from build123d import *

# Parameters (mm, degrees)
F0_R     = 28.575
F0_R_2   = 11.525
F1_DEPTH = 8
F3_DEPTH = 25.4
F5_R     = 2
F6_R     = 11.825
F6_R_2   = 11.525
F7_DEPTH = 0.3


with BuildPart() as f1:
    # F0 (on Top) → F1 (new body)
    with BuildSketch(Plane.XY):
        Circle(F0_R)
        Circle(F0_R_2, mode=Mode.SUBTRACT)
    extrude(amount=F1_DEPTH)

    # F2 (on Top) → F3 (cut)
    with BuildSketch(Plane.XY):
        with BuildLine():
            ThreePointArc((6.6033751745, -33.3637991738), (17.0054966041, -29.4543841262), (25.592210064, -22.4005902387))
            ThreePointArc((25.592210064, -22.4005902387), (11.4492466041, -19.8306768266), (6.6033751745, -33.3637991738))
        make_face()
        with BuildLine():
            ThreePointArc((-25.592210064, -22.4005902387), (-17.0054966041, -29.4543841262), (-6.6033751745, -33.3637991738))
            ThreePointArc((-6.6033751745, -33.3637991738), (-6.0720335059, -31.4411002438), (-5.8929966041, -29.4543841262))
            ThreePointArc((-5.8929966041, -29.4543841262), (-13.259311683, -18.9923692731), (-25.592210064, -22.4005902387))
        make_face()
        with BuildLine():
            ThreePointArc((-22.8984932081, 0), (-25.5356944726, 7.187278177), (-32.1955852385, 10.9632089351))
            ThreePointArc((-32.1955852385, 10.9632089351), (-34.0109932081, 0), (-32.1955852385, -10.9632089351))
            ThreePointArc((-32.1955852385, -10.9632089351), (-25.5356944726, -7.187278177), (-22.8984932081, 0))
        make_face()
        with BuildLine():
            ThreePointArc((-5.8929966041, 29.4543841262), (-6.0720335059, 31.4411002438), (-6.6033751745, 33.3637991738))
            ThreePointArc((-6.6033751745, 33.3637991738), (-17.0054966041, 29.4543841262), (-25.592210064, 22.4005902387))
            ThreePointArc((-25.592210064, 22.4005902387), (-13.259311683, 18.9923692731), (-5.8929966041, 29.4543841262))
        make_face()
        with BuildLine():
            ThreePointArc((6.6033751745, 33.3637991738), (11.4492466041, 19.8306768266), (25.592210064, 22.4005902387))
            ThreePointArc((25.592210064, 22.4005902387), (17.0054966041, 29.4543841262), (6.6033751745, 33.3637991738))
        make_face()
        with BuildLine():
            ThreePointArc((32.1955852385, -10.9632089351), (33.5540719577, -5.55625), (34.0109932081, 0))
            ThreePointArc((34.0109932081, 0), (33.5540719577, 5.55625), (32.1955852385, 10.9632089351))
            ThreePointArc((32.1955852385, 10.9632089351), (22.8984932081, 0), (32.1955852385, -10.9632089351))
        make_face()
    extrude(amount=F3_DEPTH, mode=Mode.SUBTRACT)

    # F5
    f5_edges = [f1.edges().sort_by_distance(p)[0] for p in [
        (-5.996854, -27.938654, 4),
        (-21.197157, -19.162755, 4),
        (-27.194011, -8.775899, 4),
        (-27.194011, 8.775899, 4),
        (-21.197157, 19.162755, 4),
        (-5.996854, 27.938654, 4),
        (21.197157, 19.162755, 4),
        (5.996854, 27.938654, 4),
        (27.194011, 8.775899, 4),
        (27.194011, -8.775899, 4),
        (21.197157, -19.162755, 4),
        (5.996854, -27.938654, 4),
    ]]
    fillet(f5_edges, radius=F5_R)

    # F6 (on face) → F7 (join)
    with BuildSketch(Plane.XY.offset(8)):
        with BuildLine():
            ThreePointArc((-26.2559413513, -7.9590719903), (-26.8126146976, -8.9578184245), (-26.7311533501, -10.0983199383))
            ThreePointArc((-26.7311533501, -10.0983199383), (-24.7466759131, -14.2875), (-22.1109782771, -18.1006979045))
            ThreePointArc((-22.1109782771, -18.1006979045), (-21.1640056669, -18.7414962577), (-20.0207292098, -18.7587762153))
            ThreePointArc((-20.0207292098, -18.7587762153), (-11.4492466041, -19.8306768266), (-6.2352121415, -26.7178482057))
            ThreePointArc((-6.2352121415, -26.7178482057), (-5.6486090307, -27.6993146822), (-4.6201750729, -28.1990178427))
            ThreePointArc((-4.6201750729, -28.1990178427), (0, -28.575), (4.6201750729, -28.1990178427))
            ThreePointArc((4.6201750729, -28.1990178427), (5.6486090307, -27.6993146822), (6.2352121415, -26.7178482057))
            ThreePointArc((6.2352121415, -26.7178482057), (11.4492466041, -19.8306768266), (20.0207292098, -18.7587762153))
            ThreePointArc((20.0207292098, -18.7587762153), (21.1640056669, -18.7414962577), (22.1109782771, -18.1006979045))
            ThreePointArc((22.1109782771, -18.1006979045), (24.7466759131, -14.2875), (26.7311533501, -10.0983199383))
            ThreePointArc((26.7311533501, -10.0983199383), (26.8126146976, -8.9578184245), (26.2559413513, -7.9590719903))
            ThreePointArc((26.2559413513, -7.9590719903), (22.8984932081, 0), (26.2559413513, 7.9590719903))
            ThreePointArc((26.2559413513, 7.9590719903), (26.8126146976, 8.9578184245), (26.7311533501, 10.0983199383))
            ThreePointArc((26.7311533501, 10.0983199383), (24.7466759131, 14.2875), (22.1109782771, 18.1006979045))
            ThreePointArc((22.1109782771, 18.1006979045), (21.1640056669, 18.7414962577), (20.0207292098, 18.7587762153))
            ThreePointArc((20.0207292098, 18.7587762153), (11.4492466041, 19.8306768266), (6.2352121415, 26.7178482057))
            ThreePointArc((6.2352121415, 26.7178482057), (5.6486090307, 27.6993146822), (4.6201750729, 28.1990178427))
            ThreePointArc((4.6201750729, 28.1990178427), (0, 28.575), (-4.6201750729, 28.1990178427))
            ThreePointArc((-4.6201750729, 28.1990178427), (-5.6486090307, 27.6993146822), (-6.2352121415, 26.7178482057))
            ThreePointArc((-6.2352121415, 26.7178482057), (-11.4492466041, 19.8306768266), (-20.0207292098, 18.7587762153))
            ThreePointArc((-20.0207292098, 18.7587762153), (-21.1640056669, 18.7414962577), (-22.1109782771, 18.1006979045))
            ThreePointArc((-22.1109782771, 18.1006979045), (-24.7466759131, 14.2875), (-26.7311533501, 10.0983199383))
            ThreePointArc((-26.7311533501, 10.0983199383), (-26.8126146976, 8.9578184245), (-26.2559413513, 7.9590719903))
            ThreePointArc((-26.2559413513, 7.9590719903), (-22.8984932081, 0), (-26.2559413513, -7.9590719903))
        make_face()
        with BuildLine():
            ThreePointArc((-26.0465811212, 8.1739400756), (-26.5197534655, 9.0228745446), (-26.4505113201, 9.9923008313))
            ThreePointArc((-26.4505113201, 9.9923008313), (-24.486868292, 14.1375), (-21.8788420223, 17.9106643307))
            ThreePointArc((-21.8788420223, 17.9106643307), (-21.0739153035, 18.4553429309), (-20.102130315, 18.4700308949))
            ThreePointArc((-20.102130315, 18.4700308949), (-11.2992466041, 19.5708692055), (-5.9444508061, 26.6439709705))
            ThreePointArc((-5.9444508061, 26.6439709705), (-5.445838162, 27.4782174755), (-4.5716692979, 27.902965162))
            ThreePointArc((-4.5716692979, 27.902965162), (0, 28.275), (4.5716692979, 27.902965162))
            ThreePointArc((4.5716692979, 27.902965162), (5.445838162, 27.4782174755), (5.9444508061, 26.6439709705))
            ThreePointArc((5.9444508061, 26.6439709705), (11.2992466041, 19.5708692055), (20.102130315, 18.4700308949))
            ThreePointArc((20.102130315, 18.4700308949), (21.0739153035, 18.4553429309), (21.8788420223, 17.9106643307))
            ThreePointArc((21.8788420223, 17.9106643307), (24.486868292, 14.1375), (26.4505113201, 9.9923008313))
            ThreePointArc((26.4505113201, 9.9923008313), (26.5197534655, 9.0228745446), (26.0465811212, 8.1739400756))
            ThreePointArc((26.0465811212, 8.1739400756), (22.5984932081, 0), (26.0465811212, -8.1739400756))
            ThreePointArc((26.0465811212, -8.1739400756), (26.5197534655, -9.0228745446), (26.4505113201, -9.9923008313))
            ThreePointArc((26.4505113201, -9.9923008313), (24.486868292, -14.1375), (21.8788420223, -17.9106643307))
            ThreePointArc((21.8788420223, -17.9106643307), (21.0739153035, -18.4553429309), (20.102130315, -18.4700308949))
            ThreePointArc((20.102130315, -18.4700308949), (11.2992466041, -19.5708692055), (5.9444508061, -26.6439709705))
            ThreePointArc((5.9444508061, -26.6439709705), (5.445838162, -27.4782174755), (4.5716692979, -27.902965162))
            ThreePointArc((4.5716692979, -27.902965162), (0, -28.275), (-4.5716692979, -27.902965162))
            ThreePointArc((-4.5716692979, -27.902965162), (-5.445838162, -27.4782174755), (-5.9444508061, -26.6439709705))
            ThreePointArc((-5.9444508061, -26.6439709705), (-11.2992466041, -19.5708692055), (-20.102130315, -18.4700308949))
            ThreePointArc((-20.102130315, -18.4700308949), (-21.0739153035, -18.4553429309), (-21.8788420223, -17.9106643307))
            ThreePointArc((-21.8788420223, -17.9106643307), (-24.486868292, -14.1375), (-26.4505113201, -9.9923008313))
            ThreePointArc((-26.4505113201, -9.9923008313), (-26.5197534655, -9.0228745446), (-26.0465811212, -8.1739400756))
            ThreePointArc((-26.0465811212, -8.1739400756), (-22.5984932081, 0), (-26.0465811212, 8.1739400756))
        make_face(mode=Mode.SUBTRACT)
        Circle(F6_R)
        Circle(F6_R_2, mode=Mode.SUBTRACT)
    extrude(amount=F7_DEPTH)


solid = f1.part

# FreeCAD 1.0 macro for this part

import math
import FreeCAD as App
import Part
import Sketcher
Q = App.Units.Quantity


def edges_at(feature, points):
    """Names of the edges that pass closest to the given points."""
    edges = feature.Shape.Edges
    near = lambda p: min(range(len(edges)), key=lambda i: edges[i].distToShape(Part.Vertex(*p))[0])
    return sorted({f"Edge{near(p) + 1}" for p in points})

doc = App.newDocument("Part")
params = doc.addObject("Spreadsheet::Sheet", "Params")
for row, (alias, value) in enumerate([
    ("sketch1_diameter", "57.15 mm"),
    ("sketch1_diameter2", "23.05 mm"),
    ("pad1_length", "8 mm"),
    ("pocket1_length", "25.4 mm"),
    ("fillet_radius", "2 mm"),
    ("sketch3_radius", "2 mm"),
    ("sketch3_radius2", "1.7 mm"),
    ("sketch3_diameter", "23.65 mm"),
    ("sketch3_diameter2", "23.05 mm"),
    ("pad2_length", "0.3 mm"),
], start=1):
    params.set(f"A{row}", alias)
    params.set(f"B{row}", "=" + value)
    params.setAlias(f"B{row}", alias)

body = doc.addObject("PartDesign::Body", "Body")

sketch1 = doc.addObject("Sketcher::SketchObject", "Sketch")
body.addObject(sketch1)
sketch1.AttachmentSupport = (doc.XY_Plane, [""])
sketch1.MapMode = "FlatFace"
sketch1.addGeometry([
    Part.Circle(App.Vector(0, 0, 0), App.Vector(0, 0, 1), 29),
    Part.Circle(App.Vector(0, 0, 0), App.Vector(0, 0, 1), 12),
], False)
sketch1.addConstraint([
    Sketcher.Constraint("Coincident", 0, 3, -1, 1),
    Sketcher.Constraint("Coincident", 1, 3, -1, 1),
    Sketcher.Constraint("Diameter", 0, Q("57.15 mm")),
    Sketcher.Constraint("Diameter", 1, Q("23.05 mm")),
])
sketch1.setExpression("Constraints[2]", "Params.sketch1_diameter")
sketch1.setExpression("Constraints[3]", "Params.sketch1_diameter2")
pad1 = doc.addObject("PartDesign::Pad", "Pad")
body.addObject(pad1)
pad1.Profile = sketch1
pad1.setExpression("Length", "Params.pad1_length")

sketch2 = doc.addObject("Sketcher::SketchObject", "Sketch001")
body.addObject(sketch2)
sketch2.AttachmentSupport = (doc.XY_Plane, [""])
sketch2.MapMode = "FlatFace"
sketch2.addGeometry([
    Part.ArcOfCircle(Part.Circle(App.Vector(0, 0, 0), App.Vector(0, 0, 1), 34), math.radians(-79), math.radians(-41)),
    Part.ArcOfCircle(Part.Circle(App.Vector(17, -29.5, 0), App.Vector(0, 0, 1), 11.1), math.radians(39), math.radians(201)),
    Part.ArcOfCircle(Part.Circle(App.Vector(0, 0, 0), App.Vector(0, 0, 1), 34), math.radians(-139), math.radians(-101)),
    Part.ArcOfCircle(Part.Circle(App.Vector(-17, -29.5, 0), App.Vector(0, 0, 1), 11.1), math.radians(-21), math.radians(0)),
    Part.ArcOfCircle(Part.Circle(App.Vector(-17, -29.5, 0), App.Vector(0, 0, 1), 11.1), math.radians(0), math.radians(141)),
    Part.ArcOfCircle(Part.Circle(App.Vector(-34, 0, 0), App.Vector(0, 0, 1), 11.1), math.radians(0), math.radians(81)),
    Part.ArcOfCircle(Part.Circle(App.Vector(0, 0, 0), App.Vector(0, 0, 1), 34), math.radians(161), math.radians(199)),
    Part.ArcOfCircle(Part.Circle(App.Vector(-34, 0, 0), App.Vector(0, 0, 1), 11.1), math.radians(-81), math.radians(0)),
    Part.ArcOfCircle(Part.Circle(App.Vector(-17, 29.5, 0), App.Vector(0, 0, 1), 11.1), math.radians(0), math.radians(21)),
    Part.ArcOfCircle(Part.Circle(App.Vector(0, 0, 0), App.Vector(0, 0, 1), 34), math.radians(101), math.radians(139)),
    Part.ArcOfCircle(Part.Circle(App.Vector(-17, 29.5, 0), App.Vector(0, 0, 1), 11.1), math.radians(-141), math.radians(0)),
    Part.ArcOfCircle(Part.Circle(App.Vector(17, 29.5, 0), App.Vector(0, 0, 1), 11.1), math.radians(159), math.radians(321)),
    Part.ArcOfCircle(Part.Circle(App.Vector(0, 0, 0), App.Vector(0, 0, 1), 34), math.radians(41), math.radians(79)),
    Part.ArcOfCircle(Part.Circle(App.Vector(0, 0, 0), App.Vector(0, 0, 1), 34), math.radians(-18.8), math.radians(0)),
    Part.ArcOfCircle(Part.Circle(App.Vector(0, 0, 0), App.Vector(0, 0, 1), 34), math.radians(0), math.radians(18.8)),
    Part.ArcOfCircle(Part.Circle(App.Vector(34, 0, 0), App.Vector(0, 0, 1), 11.1), math.radians(99), math.radians(261)),
], False)
sketch2.addConstraint([
    Sketcher.Constraint("Coincident", 0, 1, 1, 2),
    Sketcher.Constraint("Coincident", 1, 1, 0, 2),
    Sketcher.Constraint("Coincident", 2, 2, 3, 1),
    Sketcher.Constraint("Tangent", 3, 2, 4, 1),
    Sketcher.Constraint("Coincident", 4, 2, 2, 1),
    Sketcher.Constraint("Coincident", 5, 2, 6, 1),
    Sketcher.Constraint("Coincident", 6, 2, 7, 1),
    Sketcher.Constraint("Tangent", 7, 2, 5, 1),
    Sketcher.Constraint("Coincident", 8, 2, 9, 1),
    Sketcher.Constraint("Coincident", 9, 2, 10, 1),
    Sketcher.Constraint("Tangent", 10, 2, 8, 1),
    Sketcher.Constraint("Coincident", 11, 1, 12, 2),
    Sketcher.Constraint("Coincident", 12, 1, 11, 2),
    Sketcher.Constraint("Tangent", 13, 2, 14, 1),
    Sketcher.Constraint("Coincident", 14, 2, 15, 1),
    Sketcher.Constraint("Coincident", 15, 2, 13, 1),
    Sketcher.Constraint("Coincident", 0, 3, -1, 1),
    Sketcher.Constraint("Coincident", 2, 3, -1, 1),
    Sketcher.Constraint("Coincident", 6, 3, -1, 1),
    Sketcher.Constraint("Coincident", 9, 3, -1, 1),
    Sketcher.Constraint("Coincident", 12, 3, -1, 1),
    Sketcher.Constraint("Coincident", 13, 3, -1, 1),
    Sketcher.Constraint("Coincident", 13, 2, 15, 3),
    Sketcher.Constraint("Equal", 0, 2),
    Sketcher.Constraint("Equal", 1, 3),
    Sketcher.Constraint("Equal", 3, 4),
    Sketcher.Constraint("Equal", 4, 5),
    Sketcher.Constraint("Equal", 2, 6),
    Sketcher.Constraint("Equal", 5, 7),
    Sketcher.Constraint("Equal", 7, 8),
    Sketcher.Constraint("Equal", 6, 9),
    Sketcher.Constraint("Equal", 8, 10),
    Sketcher.Constraint("Equal", 10, 11),
    Sketcher.Constraint("Equal", 9, 12),
    Sketcher.Constraint("Equal", 12, 13),
    Sketcher.Constraint("Equal", 13, 14),
    Sketcher.Constraint("Equal", 11, 15),
    Sketcher.Constraint("Symmetric", 1, 3, 8, 3, -1, 1),
    Sketcher.Constraint("Symmetric", 3, 3, 11, 3, -1, 1),
    Sketcher.Constraint("Symmetric", 5, 3, 15, 3, -1, 1),
    Sketcher.Constraint("Symmetric", 1, 3, 3, 3, -2),
    Sketcher.Constraint("PointOnObject", 5, 3, -1),
    Sketcher.Constraint("PointOnObject", 7, 2, -1),
    Sketcher.Constraint("Horizontal", 4, 3, 3, 2),
    Sketcher.Constraint("Horizontal", 11, 3, 10, 2),
    Sketcher.Constraint("Radius", 1, Q("11.1125 mm")),
    Sketcher.Constraint("Radius", 0, Q("34.010993 mm")),
    Sketcher.Constraint("DistanceY", 0, 1, -1, 1, Q("33.363799 mm")),
    Sketcher.Constraint("DistanceX", -1, 1, 1, 1, Q("25.59221 mm")),
])
pocket1 = doc.addObject("PartDesign::Pocket", "Pocket")
body.addObject(pocket1)
pocket1.Profile = sketch2
pocket1.setExpression("Length", "Params.pocket1_length")
pocket1.Reversed = True
doc.recompute()

fillet = doc.addObject("PartDesign::Fillet", "Fillet")
body.addObject(fillet)
fillet.Base = (pocket1, edges_at(pocket1, [
    (-5.997, -27.939, 4),
    (-21.197, -19.163, 4),
    (-27.194, -8.776, 4),
    (-27.194, 8.776, 4),
    (-21.197, 19.163, 4),
    (-5.997, 27.939, 4),
    (21.197, 19.163, 4),
    (5.997, 27.939, 4),
    (27.194, 8.776, 4),
    (27.194, -8.776, 4),
    (21.197, -19.163, 4),
    (5.997, -27.939, 4),
]))
fillet.setExpression("Radius", "Params.fillet_radius")

sketch3 = doc.addObject("Sketcher::SketchObject", "Sketch002")
body.addObject(sketch3)
sketch3.AttachmentSupport = (doc.XY_Plane, [""])
sketch3.MapMode = "FlatFace"
sketch3.AttachmentOffset = App.Placement(App.Vector(0, 0, 8), App.Rotation())
sketch3.addGeometry([
    Part.ArcOfCircle(Part.Circle(App.Vector(-24.9, -9.4, 0), App.Vector(0, 0, 1), 2), math.radians(134), math.radians(201)),
    Part.ArcOfCircle(Part.Circle(App.Vector(0, 0, 0), App.Vector(0, 0, 1), 28.6), math.radians(-159.3), math.radians(-140.7)),
    Part.ArcOfCircle(Part.Circle(App.Vector(-20.6, -16.8, 0), App.Vector(0, 0, 1), 2), math.radians(-141), math.radians(-74)),
    Part.ArcOfCircle(Part.Circle(App.Vector(-17, -29.5, 0), App.Vector(0, 0, 1), 11.1), math.radians(14), math.radians(106)),
    Part.ArcOfCircle(Part.Circle(App.Vector(-4.3, -26.2, 0), App.Vector(0, 0, 1), 2), math.radians(-166), math.radians(-99)),
    Part.ArcOfCircle(Part.Circle(App.Vector(0, 0, 0), App.Vector(0, 0, 1), 28.6), math.radians(-99.3), math.radians(-80.7)),
    Part.ArcOfCircle(Part.Circle(App.Vector(4.3, -26.2, 0), App.Vector(0, 0, 1), 2), math.radians(-81), math.radians(-14)),
    Part.ArcOfCircle(Part.Circle(App.Vector(17, -29.5, 0), App.Vector(0, 0, 1), 11.1), math.radians(74), math.radians(166)),
    Part.ArcOfCircle(Part.Circle(App.Vector(20.6, -16.8, 0), App.Vector(0, 0, 1), 2), math.radians(-106), math.radians(-39)),
    Part.ArcOfCircle(Part.Circle(App.Vector(0, 0, 0), App.Vector(0, 0, 1), 28.6), math.radians(-39.3), math.radians(-20.7)),
    Part.ArcOfCircle(Part.Circle(App.Vector(24.9, -9.4, 0), App.Vector(0, 0, 1), 2), math.radians(-21), math.radians(46)),
    Part.ArcOfCircle(Part.Circle(App.Vector(34, 0, 0), App.Vector(0, 0, 1), 11.1), math.radians(134), math.radians(226)),
    Part.ArcOfCircle(Part.Circle(App.Vector(24.9, 9.4, 0), App.Vector(0, 0, 1), 2), math.radians(-46), math.radians(21)),
    Part.ArcOfCircle(Part.Circle(App.Vector(0, 0, 0), App.Vector(0, 0, 1), 28.6), math.radians(20.7), math.radians(39.3)),
    Part.ArcOfCircle(Part.Circle(App.Vector(20.6, 16.8, 0), App.Vector(0, 0, 1), 2), math.radians(39), math.radians(106)),
    Part.ArcOfCircle(Part.Circle(App.Vector(17, 29.5, 0), App.Vector(0, 0, 1), 11.1), math.radians(-166), math.radians(-74)),
    Part.ArcOfCircle(Part.Circle(App.Vector(4.3, 26.2, 0), App.Vector(0, 0, 1), 2), math.radians(14), math.radians(81)),
    Part.ArcOfCircle(Part.Circle(App.Vector(0, 0, 0), App.Vector(0, 0, 1), 28.6), math.radians(80.7), math.radians(99.3)),
    Part.ArcOfCircle(Part.Circle(App.Vector(-4.3, 26.2, 0), App.Vector(0, 0, 1), 2), math.radians(99), math.radians(166)),
    Part.ArcOfCircle(Part.Circle(App.Vector(-17, 29.5, 0), App.Vector(0, 0, 1), 11.1), math.radians(-106), math.radians(-14)),
    Part.ArcOfCircle(Part.Circle(App.Vector(-20.6, 16.8, 0), App.Vector(0, 0, 1), 2), math.radians(74), math.radians(141)),
    Part.ArcOfCircle(Part.Circle(App.Vector(0, 0, 0), App.Vector(0, 0, 1), 28.6), math.radians(140.7), math.radians(159.3)),
    Part.ArcOfCircle(Part.Circle(App.Vector(-24.9, 9.4, 0), App.Vector(0, 0, 1), 2), math.radians(159), math.radians(226)),
    Part.ArcOfCircle(Part.Circle(App.Vector(-34, 0, 0), App.Vector(0, 0, 1), 11.1), math.radians(-46), math.radians(46)),
    Part.ArcOfCircle(Part.Circle(App.Vector(-34, 0, 0), App.Vector(0, 0, 1), 11.4), math.radians(-46), math.radians(46)),
    Part.ArcOfCircle(Part.Circle(App.Vector(-24.9, 9.4, 0), App.Vector(0, 0, 1), 1.7), math.radians(159), math.radians(226)),
    Part.ArcOfCircle(Part.Circle(App.Vector(0, 0, 0), App.Vector(0, 0, 1), 28.3), math.radians(140.7), math.radians(159.3)),
    Part.ArcOfCircle(Part.Circle(App.Vector(-20.6, 16.8, 0), App.Vector(0, 0, 1), 1.7), math.radians(74), math.radians(141)),
    Part.ArcOfCircle(Part.Circle(App.Vector(-17, 29.5, 0), App.Vector(0, 0, 1), 11.4), math.radians(-106), math.radians(-14)),
    Part.ArcOfCircle(Part.Circle(App.Vector(-4.3, 26.2, 0), App.Vector(0, 0, 1), 1.7), math.radians(99), math.radians(166)),
    Part.ArcOfCircle(Part.Circle(App.Vector(0, 0, 0), App.Vector(0, 0, 1), 28.3), math.radians(80.7), math.radians(99.3)),
    Part.ArcOfCircle(Part.Circle(App.Vector(4.3, 26.2, 0), App.Vector(0, 0, 1), 1.7), math.radians(14), math.radians(81)),
    Part.ArcOfCircle(Part.Circle(App.Vector(17, 29.5, 0), App.Vector(0, 0, 1), 11.4), math.radians(-166), math.radians(-74)),
    Part.ArcOfCircle(Part.Circle(App.Vector(20.6, 16.8, 0), App.Vector(0, 0, 1), 1.7), math.radians(39), math.radians(106)),
    Part.ArcOfCircle(Part.Circle(App.Vector(0, 0, 0), App.Vector(0, 0, 1), 28.3), math.radians(20.7), math.radians(39.3)),
    Part.ArcOfCircle(Part.Circle(App.Vector(24.9, 9.4, 0), App.Vector(0, 0, 1), 1.7), math.radians(-46), math.radians(21)),
    Part.ArcOfCircle(Part.Circle(App.Vector(34, 0, 0), App.Vector(0, 0, 1), 11.4), math.radians(134), math.radians(226)),
    Part.ArcOfCircle(Part.Circle(App.Vector(24.9, -9.4, 0), App.Vector(0, 0, 1), 1.7), math.radians(-21), math.radians(46)),
    Part.ArcOfCircle(Part.Circle(App.Vector(0, 0, 0), App.Vector(0, 0, 1), 28.3), math.radians(-39.3), math.radians(-20.7)),
    Part.ArcOfCircle(Part.Circle(App.Vector(20.6, -16.8, 0), App.Vector(0, 0, 1), 1.7), math.radians(-106), math.radians(-39)),
    Part.ArcOfCircle(Part.Circle(App.Vector(17, -29.5, 0), App.Vector(0, 0, 1), 11.4), math.radians(74), math.radians(166)),
    Part.ArcOfCircle(Part.Circle(App.Vector(4.3, -26.2, 0), App.Vector(0, 0, 1), 1.7), math.radians(-81), math.radians(-14)),
    Part.ArcOfCircle(Part.Circle(App.Vector(0, 0, 0), App.Vector(0, 0, 1), 28.3), math.radians(-99.3), math.radians(-80.7)),
    Part.ArcOfCircle(Part.Circle(App.Vector(-4.3, -26.2, 0), App.Vector(0, 0, 1), 1.7), math.radians(-166), math.radians(-99)),
    Part.ArcOfCircle(Part.Circle(App.Vector(-17, -29.5, 0), App.Vector(0, 0, 1), 11.4), math.radians(14), math.radians(106)),
    Part.ArcOfCircle(Part.Circle(App.Vector(-20.6, -16.8, 0), App.Vector(0, 0, 1), 1.7), math.radians(-141), math.radians(-74)),
    Part.ArcOfCircle(Part.Circle(App.Vector(0, 0, 0), App.Vector(0, 0, 1), 28.3), math.radians(-159.3), math.radians(-140.7)),
    Part.ArcOfCircle(Part.Circle(App.Vector(-24.9, -9.4, 0), App.Vector(0, 0, 1), 1.7), math.radians(134), math.radians(201)),
    Part.Circle(App.Vector(0, 0, 0), App.Vector(0, 0, 1), 11.8),
    Part.Circle(App.Vector(0, 0, 0), App.Vector(0, 0, 1), 11.5),
], False)
sketch3.addConstraint([
    Sketcher.Constraint("Tangent", 0, 2, 1, 1),
    Sketcher.Constraint("Tangent", 1, 2, 2, 1),
    Sketcher.Constraint("Tangent", 2, 2, 3, 2),
    Sketcher.Constraint("Tangent", 3, 1, 4, 1),
    Sketcher.Constraint("Tangent", 4, 2, 5, 1),
    Sketcher.Constraint("Tangent", 5, 2, 6, 1),
    Sketcher.Constraint("Tangent", 6, 2, 7, 2),
    Sketcher.Constraint("Tangent", 7, 1, 8, 1),
    Sketcher.Constraint("Tangent", 8, 2, 9, 1),
    Sketcher.Constraint("Tangent", 9, 2, 10, 1),
    Sketcher.Constraint("Tangent", 10, 2, 11, 2),
    Sketcher.Constraint("Tangent", 11, 1, 12, 1),
    Sketcher.Constraint("Tangent", 12, 2, 13, 1),
    Sketcher.Constraint("Tangent", 13, 2, 14, 1),
    Sketcher.Constraint("Tangent", 14, 2, 15, 2),
    Sketcher.Constraint("Tangent", 15, 1, 16, 1),
    Sketcher.Constraint("Tangent", 16, 2, 17, 1),
    Sketcher.Constraint("Tangent", 17, 2, 18, 1),
    Sketcher.Constraint("Tangent", 18, 2, 19, 2),
    Sketcher.Constraint("Tangent", 19, 1, 20, 1),
    Sketcher.Constraint("Tangent", 20, 2, 21, 1),
    Sketcher.Constraint("Tangent", 21, 2, 22, 1),
    Sketcher.Constraint("Tangent", 22, 2, 23, 2),
    Sketcher.Constraint("Tangent", 23, 1, 0, 1),
    Sketcher.Constraint("Tangent", 24, 2, 25, 2),
    Sketcher.Constraint("Tangent", 25, 1, 26, 2),
    Sketcher.Constraint("Tangent", 26, 1, 27, 2),
    Sketcher.Constraint("Tangent", 27, 1, 28, 1),
    Sketcher.Constraint("Tangent", 28, 2, 29, 2),
    Sketcher.Constraint("Tangent", 29, 1, 30, 2),
    Sketcher.Constraint("Tangent", 30, 1, 31, 2),
    Sketcher.Constraint("Tangent", 31, 1, 32, 1),
    Sketcher.Constraint("Tangent", 32, 2, 33, 2),
    Sketcher.Constraint("Tangent", 33, 1, 34, 2),
    Sketcher.Constraint("Tangent", 34, 1, 35, 2),
    Sketcher.Constraint("Tangent", 35, 1, 36, 1),
    Sketcher.Constraint("Tangent", 36, 2, 37, 2),
    Sketcher.Constraint("Tangent", 37, 1, 38, 2),
    Sketcher.Constraint("Tangent", 38, 1, 39, 2),
    Sketcher.Constraint("Tangent", 39, 1, 40, 1),
    Sketcher.Constraint("Tangent", 40, 2, 41, 2),
    Sketcher.Constraint("Tangent", 41, 1, 42, 2),
    Sketcher.Constraint("Tangent", 42, 1, 43, 2),
    Sketcher.Constraint("Tangent", 43, 1, 44, 1),
    Sketcher.Constraint("Tangent", 44, 2, 45, 2),
    Sketcher.Constraint("Tangent", 45, 1, 46, 2),
    Sketcher.Constraint("Tangent", 46, 1, 47, 2),
    Sketcher.Constraint("Tangent", 47, 1, 24, 1),
    Sketcher.Constraint("Coincident", 1, 3, -1, 1),
    Sketcher.Constraint("Coincident", 5, 3, -1, 1),
    Sketcher.Constraint("Coincident", 9, 3, -1, 1),
    Sketcher.Constraint("Coincident", 13, 3, -1, 1),
    Sketcher.Constraint("Coincident", 17, 3, -1, 1),
    Sketcher.Constraint("Coincident", 21, 3, -1, 1),
    Sketcher.Constraint("Coincident", 26, 3, -1, 1),
    Sketcher.Constraint("Coincident", 30, 3, -1, 1),
    Sketcher.Constraint("Coincident", 34, 3, -1, 1),
    Sketcher.Constraint("Coincident", 38, 3, -1, 1),
    Sketcher.Constraint("Coincident", 42, 3, -1, 1),
    Sketcher.Constraint("Coincident", 46, 3, -1, 1),
    Sketcher.Constraint("Coincident", 48, 3, -1, 1),
    Sketcher.Constraint("Coincident", 49, 3, -1, 1),
    Sketcher.Constraint("Coincident", 24, 3, 23, 3),
    Sketcher.Constraint("Coincident", 25, 3, 22, 3),
    Sketcher.Constraint("Coincident", 27, 3, 20, 3),
    Sketcher.Constraint("Coincident", 28, 3, 19, 3),
    Sketcher.Constraint("Coincident", 29, 3, 18, 3),
    Sketcher.Constraint("Coincident", 31, 3, 16, 3),
    Sketcher.Constraint("Coincident", 32, 3, 15, 3),
    Sketcher.Constraint("Coincident", 33, 3, 14, 3),
    Sketcher.Constraint("Coincident", 35, 3, 12, 3),
    Sketcher.Constraint("Coincident", 36, 3, 11, 3),
    Sketcher.Constraint("Coincident", 37, 3, 10, 3),
    Sketcher.Constraint("Coincident", 39, 3, 8, 3),
    Sketcher.Constraint("Coincident", 40, 3, 7, 3),
    Sketcher.Constraint("Coincident", 41, 3, 6, 3),
    Sketcher.Constraint("Coincident", 43, 3, 4, 3),
    Sketcher.Constraint("Coincident", 44, 3, 3, 3),
    Sketcher.Constraint("Coincident", 45, 3, 2, 3),
    Sketcher.Constraint("Equal", 0, 2),
    Sketcher.Constraint("Equal", 2, 4),
    Sketcher.Constraint("Equal", 1, 5),
    Sketcher.Constraint("Equal", 4, 6),
    Sketcher.Constraint("Equal", 3, 7),
    Sketcher.Constraint("Equal", 6, 8),
    Sketcher.Constraint("Equal", 5, 9),
    Sketcher.Constraint("Equal", 8, 10),
    Sketcher.Constraint("Equal", 7, 11),
    Sketcher.Constraint("Equal", 10, 12),
    Sketcher.Constraint("Equal", 9, 13),
    Sketcher.Constraint("Equal", 12, 14),
    Sketcher.Constraint("Equal", 11, 15),
    Sketcher.Constraint("Equal", 14, 16),
    Sketcher.Constraint("Equal", 13, 17),
    Sketcher.Constraint("Equal", 16, 18),
    Sketcher.Constraint("Equal", 15, 19),
    Sketcher.Constraint("Equal", 18, 20),
    Sketcher.Constraint("Equal", 17, 21),
    Sketcher.Constraint("Equal", 20, 22),
    Sketcher.Constraint("Equal", 19, 23),
    Sketcher.Constraint("Equal", 45, 47),
    Sketcher.Constraint("Symmetric", 3, 3, 15, 3, -1, 1),
    Sketcher.Constraint("Symmetric", 7, 3, 19, 3, -1, 1),
    Sketcher.Constraint("Symmetric", 11, 3, 23, 3, -1, 1),
    Sketcher.Constraint("Symmetric", 3, 3, 7, 3, -2),
    Sketcher.Constraint("PointOnObject", 11, 3, -1),
    Sketcher.Constraint("Radius", 0, Q("2 mm")),
    Sketcher.Constraint("Radius", 25, Q("1.7 mm")),
    Sketcher.Constraint("Diameter", 48, Q("23.65 mm")),
    Sketcher.Constraint("Diameter", 49, Q("23.05 mm")),
    Sketcher.Constraint("Radius", 1, Q("28.575 mm")),
    Sketcher.Constraint("Radius", 3, Q("11.1125 mm")),
    Sketcher.Constraint("DistanceY", -1, 1, 25, 1, Q("9.992301 mm")),
    Sketcher.Constraint("DistanceX", 1, 2, -1, 1, Q("22.110978 mm")),
    Sketcher.Constraint("DistanceX", 2, 2, -1, 1, Q("20.020729 mm")),
])
sketch3.setExpression("Constraints[106]", "Params.sketch3_radius")
sketch3.setExpression("Constraints[107]", "Params.sketch3_radius2")
sketch3.setExpression("Constraints[108]", "Params.sketch3_diameter")
sketch3.setExpression("Constraints[109]", "Params.sketch3_diameter2")
pad2 = doc.addObject("PartDesign::Pad", "Pad001")
body.addObject(pad2)
pad2.Profile = sketch3
pad2.setExpression("Length", "Params.pad2_length")

doc.recompute()
